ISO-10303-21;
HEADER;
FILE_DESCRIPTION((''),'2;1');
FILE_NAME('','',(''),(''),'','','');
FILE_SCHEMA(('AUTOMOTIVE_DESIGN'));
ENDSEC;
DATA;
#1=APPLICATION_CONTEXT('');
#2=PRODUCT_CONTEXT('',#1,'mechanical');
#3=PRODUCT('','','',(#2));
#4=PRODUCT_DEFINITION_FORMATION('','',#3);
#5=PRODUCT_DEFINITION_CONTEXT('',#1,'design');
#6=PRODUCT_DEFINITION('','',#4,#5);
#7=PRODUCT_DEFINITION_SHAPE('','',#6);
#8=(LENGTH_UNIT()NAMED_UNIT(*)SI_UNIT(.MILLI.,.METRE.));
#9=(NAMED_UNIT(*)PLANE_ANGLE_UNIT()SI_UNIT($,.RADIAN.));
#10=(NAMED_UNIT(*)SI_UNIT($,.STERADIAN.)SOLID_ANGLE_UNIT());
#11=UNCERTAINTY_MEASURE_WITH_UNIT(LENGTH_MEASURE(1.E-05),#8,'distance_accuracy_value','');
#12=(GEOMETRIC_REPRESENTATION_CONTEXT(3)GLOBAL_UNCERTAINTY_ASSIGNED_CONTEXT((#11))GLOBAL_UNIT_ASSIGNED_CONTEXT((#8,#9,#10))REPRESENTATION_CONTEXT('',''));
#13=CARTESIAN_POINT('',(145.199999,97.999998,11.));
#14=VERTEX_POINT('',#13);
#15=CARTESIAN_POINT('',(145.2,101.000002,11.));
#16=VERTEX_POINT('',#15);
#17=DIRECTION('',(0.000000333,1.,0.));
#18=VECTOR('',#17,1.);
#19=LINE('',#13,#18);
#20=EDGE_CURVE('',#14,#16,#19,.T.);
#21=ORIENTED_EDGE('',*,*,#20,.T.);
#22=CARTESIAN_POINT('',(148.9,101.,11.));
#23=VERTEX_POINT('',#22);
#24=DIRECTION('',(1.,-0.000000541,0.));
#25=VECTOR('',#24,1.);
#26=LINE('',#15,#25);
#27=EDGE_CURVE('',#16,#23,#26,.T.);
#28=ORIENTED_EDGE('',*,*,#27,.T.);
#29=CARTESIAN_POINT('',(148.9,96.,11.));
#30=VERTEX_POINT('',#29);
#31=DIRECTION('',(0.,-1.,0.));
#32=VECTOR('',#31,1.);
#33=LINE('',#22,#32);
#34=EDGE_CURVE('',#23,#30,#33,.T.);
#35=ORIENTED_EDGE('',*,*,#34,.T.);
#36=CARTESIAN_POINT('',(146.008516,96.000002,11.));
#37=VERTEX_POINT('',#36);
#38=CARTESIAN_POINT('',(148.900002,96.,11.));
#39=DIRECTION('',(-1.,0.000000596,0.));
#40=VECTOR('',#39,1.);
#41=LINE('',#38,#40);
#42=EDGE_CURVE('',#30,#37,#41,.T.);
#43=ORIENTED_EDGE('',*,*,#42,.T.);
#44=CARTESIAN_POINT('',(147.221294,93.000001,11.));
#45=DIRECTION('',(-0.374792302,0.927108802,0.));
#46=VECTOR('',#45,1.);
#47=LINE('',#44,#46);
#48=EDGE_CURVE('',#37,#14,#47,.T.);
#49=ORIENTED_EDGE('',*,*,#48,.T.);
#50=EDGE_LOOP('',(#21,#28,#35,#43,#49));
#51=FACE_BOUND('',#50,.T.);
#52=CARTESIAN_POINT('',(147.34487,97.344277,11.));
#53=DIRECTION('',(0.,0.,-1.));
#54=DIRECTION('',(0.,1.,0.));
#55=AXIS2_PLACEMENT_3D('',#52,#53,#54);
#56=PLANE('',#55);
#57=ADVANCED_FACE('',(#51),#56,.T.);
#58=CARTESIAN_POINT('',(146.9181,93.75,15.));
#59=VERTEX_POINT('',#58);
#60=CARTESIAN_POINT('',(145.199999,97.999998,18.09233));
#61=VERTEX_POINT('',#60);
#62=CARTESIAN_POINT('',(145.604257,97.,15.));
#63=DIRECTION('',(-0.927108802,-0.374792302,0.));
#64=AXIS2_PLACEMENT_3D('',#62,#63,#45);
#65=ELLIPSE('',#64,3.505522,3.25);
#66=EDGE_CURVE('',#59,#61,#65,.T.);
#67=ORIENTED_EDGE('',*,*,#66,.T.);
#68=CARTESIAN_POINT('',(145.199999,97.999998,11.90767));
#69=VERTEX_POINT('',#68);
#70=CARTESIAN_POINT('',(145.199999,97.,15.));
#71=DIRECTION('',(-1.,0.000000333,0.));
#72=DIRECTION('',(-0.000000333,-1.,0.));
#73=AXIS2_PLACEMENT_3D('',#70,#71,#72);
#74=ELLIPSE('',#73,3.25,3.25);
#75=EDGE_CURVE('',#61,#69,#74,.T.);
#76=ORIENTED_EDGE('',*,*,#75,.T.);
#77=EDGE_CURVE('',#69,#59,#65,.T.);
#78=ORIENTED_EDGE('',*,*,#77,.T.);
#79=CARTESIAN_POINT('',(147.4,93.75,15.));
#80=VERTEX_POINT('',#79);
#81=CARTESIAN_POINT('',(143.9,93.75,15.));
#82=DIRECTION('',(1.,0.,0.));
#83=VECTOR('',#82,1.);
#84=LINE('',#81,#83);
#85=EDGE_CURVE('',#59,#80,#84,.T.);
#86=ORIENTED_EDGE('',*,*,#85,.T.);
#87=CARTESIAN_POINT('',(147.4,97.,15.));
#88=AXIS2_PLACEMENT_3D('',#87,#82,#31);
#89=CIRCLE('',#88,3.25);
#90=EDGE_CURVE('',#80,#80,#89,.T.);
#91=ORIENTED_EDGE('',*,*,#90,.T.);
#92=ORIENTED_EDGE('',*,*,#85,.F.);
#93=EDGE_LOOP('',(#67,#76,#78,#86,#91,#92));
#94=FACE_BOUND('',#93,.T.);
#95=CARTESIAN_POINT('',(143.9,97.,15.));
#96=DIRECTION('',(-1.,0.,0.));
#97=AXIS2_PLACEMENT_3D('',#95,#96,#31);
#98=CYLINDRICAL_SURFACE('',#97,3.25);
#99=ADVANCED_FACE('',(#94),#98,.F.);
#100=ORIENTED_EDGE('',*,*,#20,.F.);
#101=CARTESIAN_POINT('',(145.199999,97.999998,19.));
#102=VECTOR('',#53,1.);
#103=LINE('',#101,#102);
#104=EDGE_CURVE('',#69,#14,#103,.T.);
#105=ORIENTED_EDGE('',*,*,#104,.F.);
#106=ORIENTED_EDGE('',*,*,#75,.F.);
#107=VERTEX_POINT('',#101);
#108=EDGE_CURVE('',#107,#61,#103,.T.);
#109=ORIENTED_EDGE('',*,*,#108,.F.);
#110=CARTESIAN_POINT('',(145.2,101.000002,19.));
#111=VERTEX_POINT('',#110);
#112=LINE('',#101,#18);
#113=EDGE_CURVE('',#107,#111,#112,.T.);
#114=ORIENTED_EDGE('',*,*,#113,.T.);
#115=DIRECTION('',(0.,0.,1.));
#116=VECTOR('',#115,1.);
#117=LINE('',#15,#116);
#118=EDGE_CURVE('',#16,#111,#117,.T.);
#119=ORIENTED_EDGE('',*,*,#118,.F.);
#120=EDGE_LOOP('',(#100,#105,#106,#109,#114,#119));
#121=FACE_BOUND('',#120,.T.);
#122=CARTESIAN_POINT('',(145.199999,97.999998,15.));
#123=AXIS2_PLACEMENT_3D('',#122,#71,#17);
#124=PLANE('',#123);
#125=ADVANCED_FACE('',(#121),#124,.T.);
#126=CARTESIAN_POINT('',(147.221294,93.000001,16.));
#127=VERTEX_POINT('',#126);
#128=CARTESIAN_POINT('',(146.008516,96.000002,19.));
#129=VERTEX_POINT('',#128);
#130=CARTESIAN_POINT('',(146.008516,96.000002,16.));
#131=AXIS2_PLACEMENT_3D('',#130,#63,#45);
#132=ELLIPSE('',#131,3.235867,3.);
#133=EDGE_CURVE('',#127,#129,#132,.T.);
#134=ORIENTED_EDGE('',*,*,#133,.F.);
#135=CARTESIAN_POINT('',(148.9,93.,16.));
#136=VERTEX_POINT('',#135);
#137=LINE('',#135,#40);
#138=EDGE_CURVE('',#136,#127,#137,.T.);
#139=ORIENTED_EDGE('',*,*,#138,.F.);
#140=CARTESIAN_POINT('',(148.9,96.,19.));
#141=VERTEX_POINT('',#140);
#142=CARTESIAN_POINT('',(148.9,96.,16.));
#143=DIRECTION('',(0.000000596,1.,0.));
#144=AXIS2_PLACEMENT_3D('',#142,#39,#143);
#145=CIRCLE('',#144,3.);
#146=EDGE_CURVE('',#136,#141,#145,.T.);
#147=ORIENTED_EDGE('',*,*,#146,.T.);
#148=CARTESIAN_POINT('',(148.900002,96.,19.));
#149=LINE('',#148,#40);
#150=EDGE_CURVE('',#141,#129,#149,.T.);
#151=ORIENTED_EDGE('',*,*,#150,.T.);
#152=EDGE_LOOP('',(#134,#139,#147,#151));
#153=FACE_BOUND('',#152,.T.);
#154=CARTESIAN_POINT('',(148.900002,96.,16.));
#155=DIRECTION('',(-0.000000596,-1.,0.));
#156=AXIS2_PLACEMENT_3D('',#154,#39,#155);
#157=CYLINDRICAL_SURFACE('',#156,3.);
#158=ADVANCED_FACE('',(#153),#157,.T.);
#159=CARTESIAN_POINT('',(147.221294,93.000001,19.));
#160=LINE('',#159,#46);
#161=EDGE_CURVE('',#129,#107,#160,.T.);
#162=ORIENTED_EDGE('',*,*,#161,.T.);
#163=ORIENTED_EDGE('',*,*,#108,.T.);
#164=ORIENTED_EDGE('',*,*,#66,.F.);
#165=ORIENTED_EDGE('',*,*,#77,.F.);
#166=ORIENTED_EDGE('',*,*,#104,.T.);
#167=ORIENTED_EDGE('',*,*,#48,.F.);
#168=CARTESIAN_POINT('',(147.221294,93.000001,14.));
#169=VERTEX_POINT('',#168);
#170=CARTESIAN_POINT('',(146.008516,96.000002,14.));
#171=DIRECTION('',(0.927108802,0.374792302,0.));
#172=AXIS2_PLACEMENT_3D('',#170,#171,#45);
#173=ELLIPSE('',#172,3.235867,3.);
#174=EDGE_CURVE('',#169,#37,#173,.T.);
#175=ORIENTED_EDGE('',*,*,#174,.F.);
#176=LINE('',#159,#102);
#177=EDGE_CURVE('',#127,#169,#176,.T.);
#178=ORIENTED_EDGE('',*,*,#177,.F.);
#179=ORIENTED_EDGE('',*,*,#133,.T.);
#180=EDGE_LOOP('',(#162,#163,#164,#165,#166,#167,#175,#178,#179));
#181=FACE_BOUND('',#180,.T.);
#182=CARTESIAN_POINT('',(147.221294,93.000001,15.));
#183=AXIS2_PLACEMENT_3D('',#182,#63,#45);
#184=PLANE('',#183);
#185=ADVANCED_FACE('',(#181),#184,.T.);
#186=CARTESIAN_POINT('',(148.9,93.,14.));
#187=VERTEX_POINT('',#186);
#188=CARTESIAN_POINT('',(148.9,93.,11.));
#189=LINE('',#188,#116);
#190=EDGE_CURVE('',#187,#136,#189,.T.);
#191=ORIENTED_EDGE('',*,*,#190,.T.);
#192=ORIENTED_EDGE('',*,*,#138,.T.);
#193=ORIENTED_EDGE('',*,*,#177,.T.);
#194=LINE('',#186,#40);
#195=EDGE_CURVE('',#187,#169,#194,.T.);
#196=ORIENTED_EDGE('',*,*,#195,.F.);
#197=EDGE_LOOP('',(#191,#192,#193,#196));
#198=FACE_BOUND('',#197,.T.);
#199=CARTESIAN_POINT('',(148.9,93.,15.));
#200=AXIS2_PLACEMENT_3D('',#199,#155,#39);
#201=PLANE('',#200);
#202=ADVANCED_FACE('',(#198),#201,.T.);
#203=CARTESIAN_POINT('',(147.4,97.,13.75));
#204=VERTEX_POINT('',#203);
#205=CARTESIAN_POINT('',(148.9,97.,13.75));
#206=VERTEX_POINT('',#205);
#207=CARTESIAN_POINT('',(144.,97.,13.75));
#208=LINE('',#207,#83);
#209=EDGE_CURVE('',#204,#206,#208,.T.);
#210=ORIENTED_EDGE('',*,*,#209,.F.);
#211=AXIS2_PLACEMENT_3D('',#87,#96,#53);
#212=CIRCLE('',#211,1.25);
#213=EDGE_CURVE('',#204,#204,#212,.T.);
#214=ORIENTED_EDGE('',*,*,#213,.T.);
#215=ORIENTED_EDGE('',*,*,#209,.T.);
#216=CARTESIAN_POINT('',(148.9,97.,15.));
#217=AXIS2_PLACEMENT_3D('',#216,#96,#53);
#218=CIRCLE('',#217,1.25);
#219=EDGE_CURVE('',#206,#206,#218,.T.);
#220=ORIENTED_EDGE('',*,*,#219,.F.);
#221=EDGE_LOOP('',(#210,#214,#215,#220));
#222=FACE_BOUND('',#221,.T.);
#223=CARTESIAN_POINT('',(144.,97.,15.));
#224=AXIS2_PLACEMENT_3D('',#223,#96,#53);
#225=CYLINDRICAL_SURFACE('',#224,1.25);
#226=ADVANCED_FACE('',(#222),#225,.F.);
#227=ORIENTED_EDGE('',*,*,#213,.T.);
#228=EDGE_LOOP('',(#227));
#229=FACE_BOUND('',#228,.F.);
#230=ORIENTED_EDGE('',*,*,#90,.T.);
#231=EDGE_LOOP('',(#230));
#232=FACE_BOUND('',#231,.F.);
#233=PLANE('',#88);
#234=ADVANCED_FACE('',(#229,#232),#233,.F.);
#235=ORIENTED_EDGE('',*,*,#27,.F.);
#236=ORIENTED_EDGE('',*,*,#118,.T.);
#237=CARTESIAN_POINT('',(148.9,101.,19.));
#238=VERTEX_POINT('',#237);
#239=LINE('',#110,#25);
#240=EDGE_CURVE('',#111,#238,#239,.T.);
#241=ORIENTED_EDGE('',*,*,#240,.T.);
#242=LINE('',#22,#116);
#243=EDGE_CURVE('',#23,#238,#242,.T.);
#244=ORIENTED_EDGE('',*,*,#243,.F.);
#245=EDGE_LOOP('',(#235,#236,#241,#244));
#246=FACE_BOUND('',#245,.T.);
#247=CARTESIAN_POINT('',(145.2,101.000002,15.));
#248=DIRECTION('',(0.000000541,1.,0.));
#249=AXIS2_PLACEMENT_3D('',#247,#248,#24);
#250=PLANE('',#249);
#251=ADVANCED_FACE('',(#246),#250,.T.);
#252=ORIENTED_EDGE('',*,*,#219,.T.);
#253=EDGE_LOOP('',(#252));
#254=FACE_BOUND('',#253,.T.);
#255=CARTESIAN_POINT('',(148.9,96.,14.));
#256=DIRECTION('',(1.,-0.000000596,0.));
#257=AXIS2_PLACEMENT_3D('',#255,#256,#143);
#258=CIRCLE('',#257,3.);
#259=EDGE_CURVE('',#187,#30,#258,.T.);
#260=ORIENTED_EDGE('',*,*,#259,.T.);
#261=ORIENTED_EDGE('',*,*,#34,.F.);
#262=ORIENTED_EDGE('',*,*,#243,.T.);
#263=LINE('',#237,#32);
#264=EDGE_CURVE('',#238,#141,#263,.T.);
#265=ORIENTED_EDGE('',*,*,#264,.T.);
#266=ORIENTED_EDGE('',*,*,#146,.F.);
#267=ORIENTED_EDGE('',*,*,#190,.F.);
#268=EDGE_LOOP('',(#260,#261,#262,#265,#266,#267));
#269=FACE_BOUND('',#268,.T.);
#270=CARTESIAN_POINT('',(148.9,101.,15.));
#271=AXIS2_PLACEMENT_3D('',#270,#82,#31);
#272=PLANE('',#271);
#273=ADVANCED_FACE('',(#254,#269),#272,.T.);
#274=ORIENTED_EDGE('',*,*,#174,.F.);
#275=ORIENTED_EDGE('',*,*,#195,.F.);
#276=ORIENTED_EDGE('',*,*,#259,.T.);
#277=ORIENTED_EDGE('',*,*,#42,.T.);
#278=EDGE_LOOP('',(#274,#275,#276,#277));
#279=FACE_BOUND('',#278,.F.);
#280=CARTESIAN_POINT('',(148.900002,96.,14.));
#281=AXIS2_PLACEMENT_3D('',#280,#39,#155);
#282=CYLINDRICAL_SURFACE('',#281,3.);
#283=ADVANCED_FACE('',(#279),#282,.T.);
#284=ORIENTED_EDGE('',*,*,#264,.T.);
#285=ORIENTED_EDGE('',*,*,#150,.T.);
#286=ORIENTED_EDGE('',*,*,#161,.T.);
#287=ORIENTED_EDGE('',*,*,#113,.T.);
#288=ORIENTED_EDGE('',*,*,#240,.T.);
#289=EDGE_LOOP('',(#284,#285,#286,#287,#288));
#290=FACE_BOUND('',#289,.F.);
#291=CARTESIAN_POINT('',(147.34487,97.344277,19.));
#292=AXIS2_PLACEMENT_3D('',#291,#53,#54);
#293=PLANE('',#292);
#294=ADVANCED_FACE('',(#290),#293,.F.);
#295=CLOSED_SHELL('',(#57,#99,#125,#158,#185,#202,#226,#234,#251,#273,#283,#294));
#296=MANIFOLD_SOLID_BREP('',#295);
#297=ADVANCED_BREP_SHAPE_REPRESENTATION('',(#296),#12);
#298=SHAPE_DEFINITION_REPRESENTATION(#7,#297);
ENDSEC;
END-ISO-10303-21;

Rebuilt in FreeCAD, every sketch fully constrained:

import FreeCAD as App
import Part
import Sketcher

V = App.Vector
Q = App.Units.Quantity


def edges_at(feature, points):
    """Names of the edges that pass closest to the given points."""
    edges = feature.Shape.Edges
    near = lambda p: min(range(len(edges)), key=lambda i: edges[i].distToShape(Part.Vertex(*p))[0])
    return sorted({f"Edge{near(p) + 1}" for p in points})

doc = App.newDocument("Part")
body = doc.addObject("PartDesign::Body", "Body")

# Sketch on YZ plane
sketch1 = body.newObject("Sketcher::SketchObject", "Sketch")
sketch1.AttachmentSupport = (doc.getObject("YZ_Plane"), [""])
sketch1.MapMode = "FlatFace"
sketch1.AttachmentOffset = App.Placement(V(0, 0, -96), App.Rotation())
sketch1.addGeometry(Part.LineSegment(V(93, 26.9, 0), V(93, 25.2, 0)), False)
sketch1.addGeometry(Part.LineSegment(V(93, 25.2, 0), V(98, 23.2, 0)), False)
sketch1.addGeometry(Part.LineSegment(V(98, 23.2, 0), V(101, 23.2, 0)), False)
sketch1.addGeometry(Part.LineSegment(V(101, 23.2, 0), V(101, 26.9, 0)), False)
sketch1.addGeometry(Part.LineSegment(V(101, 26.9, 0), V(93, 26.9, 0)), False)
sketch1.addConstraint(Sketcher.Constraint("Coincident", 0, 2, 1, 1))
sketch1.addConstraint(Sketcher.Constraint("Coincident", 1, 2, 2, 1))
sketch1.addConstraint(Sketcher.Constraint("Coincident", 2, 2, 3, 1))
sketch1.addConstraint(Sketcher.Constraint("Coincident", 3, 2, 4, 1))
sketch1.addConstraint(Sketcher.Constraint("Coincident", 4, 2, 0, 1))
sketch1.addConstraint(Sketcher.Constraint("Vertical", 0))
sketch1.addConstraint(Sketcher.Constraint("Horizontal", 2))
sketch1.addConstraint(Sketcher.Constraint("Vertical", 3))
sketch1.addConstraint(Sketcher.Constraint("Horizontal", 4))
sketch1.addConstraint(Sketcher.Constraint("DistanceX", 4, 2, 4, 1, Q("8 mm")))
sketch1.addConstraint(Sketcher.Constraint("DistanceY", 3, 1, 3, 2, Q("3.7 mm")))
sketch1.addConstraint(Sketcher.Constraint("DistanceX", -1, 1, 0, 2, Q("93.000001 mm")))
sketch1.addConstraint(Sketcher.Constraint("DistanceX", -1, 1, 1, 2, Q("97.999998 mm")))
sketch1.addConstraint(Sketcher.Constraint("DistanceY", -1, 1, 1, 2, Q("23.199999 mm")))
sketch1.addConstraint(Sketcher.Constraint("DistanceY", 0, 2, 0, 1, Q("1.678706 mm")))
pad1 = body.newObject("PartDesign::Pad", "Pad")
pad1.Profile = sketch1
pad1.Length = 8
pad1.Midplane = True

# Sketch on XY plane
sketch2 = body.newObject("Sketcher::SketchObject", "Sketch001")
sketch2.AttachmentSupport = (doc.getObject("XY_Plane"), [""])
sketch2.MapMode = "FlatFace"
sketch2.AttachmentOffset = App.Placement(V(0, 0, 21.9), App.Rotation())
sketch2.addGeometry(Part.Circle(V(-96, 97, 0), V(0, 0, 1), 3.2), False)
sketch2.addConstraint(Sketcher.Constraint("Diameter", 0, Q("6.5 mm")))
sketch2.addConstraint(Sketcher.Constraint("DistanceX", 0, 3, -1, 1, Q("96 mm")))
sketch2.addConstraint(Sketcher.Constraint("DistanceY", -1, 1, 0, 3, Q("97 mm")))
pocket1 = body.newObject("PartDesign::Pocket", "Pocket")
pocket1.Profile = sketch2
pocket1.Length = 3.5
pocket1.Reversed = True

# Sketch on XY plane
sketch3 = body.newObject("Sketcher::SketchObject", "Sketch002")
sketch3.AttachmentSupport = (doc.getObject("XY_Plane"), [""])
sketch3.MapMode = "FlatFace"
sketch3.AttachmentOffset = App.Placement(V(0, 0, 22), App.Rotation())
sketch3.addGeometry(Part.Circle(V(-96, 97, 0), V(0, 0, 1), 1.2), False)
sketch3.addConstraint(Sketcher.Constraint("Diameter", 0, Q("2.5 mm")))
sketch3.addConstraint(Sketcher.Constraint("DistanceX", 0, 3, -1, 1, Q("96 mm")))
sketch3.addConstraint(Sketcher.Constraint("DistanceY", -1, 1, 0, 3, Q("97 mm")))
pocket2 = body.newObject("PartDesign::Pocket", "Pocket001")
pocket2.Profile = sketch3
pocket2.Length = 5
pocket2.Reversed = True
doc.recompute()

fillet = body.newObject("PartDesign::Fillet", "Fillet")
fillet.Base = (pocket2, edges_at(pocket2, [(-92, 93, 26.061), (-100, 93, 26.061)]))
fillet.Radius = 3
body2 = doc.addObject("PartDesign::Body", "Body001")
doc.recompute()

body.Placement = App.Placement(V(-70, 0, -81), App.Rotation(V(0, 1, 0), 90))
boolean = body2.newObject("PartDesign::Boolean", "Boolean")
boolean.Type = "Fuse"
boolean.addObjects([body])
body3 = doc.addObject("PartDesign::Body", "Body002")
doc.recompute()

body2.Placement = App.Placement(V(192, 0, 0), App.Rotation(V(0, 0, 1), 0))
boolean2 = body3.newObject("PartDesign::Boolean", "Boolean001")
boolean2.Type = "Fuse"
boolean2.addObjects([body2])

doc.recompute()
